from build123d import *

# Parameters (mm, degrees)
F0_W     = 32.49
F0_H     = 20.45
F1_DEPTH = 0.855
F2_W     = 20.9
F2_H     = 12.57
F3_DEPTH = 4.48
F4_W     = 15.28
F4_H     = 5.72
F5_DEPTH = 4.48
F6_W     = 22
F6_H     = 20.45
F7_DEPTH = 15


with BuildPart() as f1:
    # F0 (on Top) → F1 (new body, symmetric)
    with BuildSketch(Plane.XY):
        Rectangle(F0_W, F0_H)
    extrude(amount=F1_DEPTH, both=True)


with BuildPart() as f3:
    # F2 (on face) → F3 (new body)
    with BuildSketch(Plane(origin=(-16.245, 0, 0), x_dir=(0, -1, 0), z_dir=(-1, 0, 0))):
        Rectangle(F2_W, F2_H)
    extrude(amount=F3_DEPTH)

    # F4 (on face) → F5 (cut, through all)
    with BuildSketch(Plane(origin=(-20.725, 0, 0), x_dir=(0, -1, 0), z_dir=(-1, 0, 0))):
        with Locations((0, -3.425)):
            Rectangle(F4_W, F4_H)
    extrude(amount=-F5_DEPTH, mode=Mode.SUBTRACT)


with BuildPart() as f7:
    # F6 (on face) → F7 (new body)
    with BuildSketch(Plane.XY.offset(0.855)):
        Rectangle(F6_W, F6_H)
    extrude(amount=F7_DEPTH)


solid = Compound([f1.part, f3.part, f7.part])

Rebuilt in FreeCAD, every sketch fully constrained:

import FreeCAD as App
import Part
import Sketcher

V = App.Vector

doc = App.newDocument("Part")
body = doc.addObject("PartDesign::Body", "Body")

# Sketch on XY plane
sketch1 = body.newObject("Sketcher::SketchObject", "Sketch")
sketch1.AttachmentSupport = (doc.getObject("XY_Plane"), [""])
sketch1.MapMode = "FlatFace"
sketch1.addGeometry(Part.LineSegment(V(-16, 10, 0), V(-16, -10, 0)), False)
sketch1.addGeometry(Part.LineSegment(V(-16, -10, 0), V(16, -10, 0)), False)
sketch1.addGeometry(Part.LineSegment(V(16, -10, 0), V(16, 10, 0)), False)
sketch1.addGeometry(Part.LineSegment(V(16, 10, 0), V(-16, 10, 0)), False)
sketch1.addConstraint(Sketcher.Constraint("Coincident", 0, 2, 1, 1))
sketch1.addConstraint(Sketcher.Constraint("Coincident", 1, 2, 2, 1))
sketch1.addConstraint(Sketcher.Constraint("Coincident", 2, 2, 3, 1))
sketch1.addConstraint(Sketcher.Constraint("Coincident", 3, 2, 0, 1))
sketch1.addConstraint(Sketcher.Constraint("Vertical", 0))
sketch1.addConstraint(Sketcher.Constraint("Horizontal", 1))
sketch1.addConstraint(Sketcher.Constraint("Vertical", 2))
sketch1.addConstraint(Sketcher.Constraint("Horizontal", 3))
sketch1.addConstraint(Sketcher.Constraint("Symmetric", 0, 2, 2, 2, -1, 1))
sketch1.addConstraint(Sketcher.Constraint("DistanceX", 1, 1, 1, 2, 32.49))
sketch1.addConstraint(Sketcher.Constraint("DistanceY", 0, 2, 0, 1, 20.45))
pad1 = body.newObject("PartDesign::Pad", "Pad")
pad1.Profile = sketch1
pad1.Length = 1.71
pad1.Midplane = True
body2 = doc.addObject("PartDesign::Body", "Body001")

# Sketch on YZ plane
sketch2 = body2.newObject("Sketcher::SketchObject", "Sketch001")
sketch2.AttachmentSupport = (doc.getObject("YZ_Plane001"), [""])
sketch2.MapMode = "FlatFace"
sketch2.AttachmentOffset = App.Placement(V(0, 0, -16.245), App.Rotation())
sketch2.addGeometry(Part.LineSegment(V(10, 6, 0), V(10, -6, 0)), False)
sketch2.addGeometry(Part.LineSegment(V(10, -6, 0), V(-10, -6, 0)), False)
sketch2.addGeometry(Part.LineSegment(V(-10, -6, 0), V(-10, 6, 0)), False)
sketch2.addGeometry(Part.LineSegment(V(-10, 6, 0), V(10, 6, 0)), False)
sketch2.addConstraint(Sketcher.Constraint("Coincident", 0, 2, 1, 1))
sketch2.addConstraint(Sketcher.Constraint("Coincident", 1, 2, 2, 1))
sketch2.addConstraint(Sketcher.Constraint("Coincident", 2, 2, 3, 1))
sketch2.addConstraint(Sketcher.Constraint("Coincident", 3, 2, 0, 1))
sketch2.addConstraint(Sketcher.Constraint("Vertical", 0))
sketch2.addConstraint(Sketcher.Constraint("Horizontal", 1))
sketch2.addConstraint(Sketcher.Constraint("Vertical", 2))
sketch2.addConstraint(Sketcher.Constraint("Horizontal", 3))
sketch2.addConstraint(Sketcher.Constraint("Symmetric", 0, 2, 2, 2, -1, 1))
sketch2.addConstraint(Sketcher.Constraint("DistanceX", 1, 2, 1, 1, 20.9))
sketch2.addConstraint(Sketcher.Constraint("DistanceY", 0, 2, 0, 1, 12.57))
pad2 = body2.newObject("PartDesign::Pad", "Pad001")
pad2.Profile = sketch2
pad2.Length = 4.48
pad2.Reversed = True

# Sketch on YZ plane
sketch3 = body2.newObject("Sketcher::SketchObject", "Sketch002")
sketch3.AttachmentSupport = (doc.getObject("YZ_Plane001"), [""])
sketch3.MapMode = "FlatFace"
sketch3.AttachmentOffset = App.Placement(V(0, 0, -20.725), App.Rotation())
sketch3.addGeometry(Part.LineSegment(V(8, -1, 0), V(8, -6, 0)), False)
sketch3.addGeometry(Part.LineSegment(V(8, -6, 0), V(-8, -6, 0)), False)
sketch3.addGeometry(Part.LineSegment(V(-8, -6, 0), V(-8, -1, 0)), False)
sketch3.addGeometry(Part.LineSegment(V(-8, -1, 0), V(8, -1, 0)), False)
sketch3.addConstraint(Sketcher.Constraint("Coincident", 0, 2, 1, 1))
sketch3.addConstraint(Sketcher.Constraint("Coincident", 1, 2, 2, 1))
sketch3.addConstraint(Sketcher.Constraint("Coincident", 2, 2, 3, 1))
sketch3.addConstraint(Sketcher.Constraint("Coincident", 3, 2, 0, 1))
sketch3.addConstraint(Sketcher.Constraint("Vertical", 0))
sketch3.addConstraint(Sketcher.Constraint("Horizontal", 1))
sketch3.addConstraint(Sketcher.Constraint("Vertical", 2))
sketch3.addConstraint(Sketcher.Constraint("Horizontal", 3))
sketch3.addConstraint(Sketcher.Constraint("DistanceX", 1, 2, 1, 1, 15.28))
sketch3.addConstraint(Sketcher.Constraint("DistanceY", 0, 2, 0, 1, 5.72))
sketch3.addConstraint(Sketcher.Constraint("DistanceX", -1, 1, 0, 2, 7.64))
sketch3.addConstraint(Sketcher.Constraint("DistanceY", 0, 2, -1, 1, 6.285))
pocket1 = body2.newObject("PartDesign::Pocket", "Pocket")
pocket1.Profile = sketch3
pocket1.Type = "ThroughAll"
pocket1.Reversed = True
body3 = doc.addObject("PartDesign::Body", "Body002")

# Sketch on XY plane
sketch4 = body3.newObject("Sketcher::SketchObject", "Sketch003")
sketch4.AttachmentSupport = (doc.getObject("XY_Plane002"), [""])
sketch4.MapMode = "FlatFace"
sketch4.AttachmentOffset = App.Placement(V(0, 0, 0.855), App.Rotation())
sketch4.addGeometry(Part.LineSegment(V(-11, 10, 0), V(-11, -10, 0)), False)
sketch4.addGeometry(Part.LineSegment(V(-11, -10, 0), V(11, -10, 0)), False)
sketch4.addGeometry(Part.LineSegment(V(11, -10, 0), V(11, 10, 0)), False)
sketch4.addGeometry(Part.LineSegment(V(11, 10, 0), V(-11, 10, 0)), False)
sketch4.addConstraint(Sketcher.Constraint("Coincident", 0, 2, 1, 1))
sketch4.addConstraint(Sketcher.Constraint("Coincident", 1, 2, 2, 1))
sketch4.addConstraint(Sketcher.Constraint("Coincident", 2, 2, 3, 1))
sketch4.addConstraint(Sketcher.Constraint("Coincident", 3, 2, 0, 1))
sketch4.addConstraint(Sketcher.Constraint("Vertical", 0))
sketch4.addConstraint(Sketcher.Constraint("Horizontal", 1))
sketch4.addConstraint(Sketcher.Constraint("Vertical", 2))
sketch4.addConstraint(Sketcher.Constraint("Horizontal", 3))
sketch4.addConstraint(Sketcher.Constraint("Symmetric", 0, 2, 2, 2, -1, 1))
sketch4.addConstraint(Sketcher.Constraint("DistanceX", 1, 1, 1, 2, 22.0))
sketch4.addConstraint(Sketcher.Constraint("DistanceY", 0, 2, 0, 1, 20.45))
pad3 = body3.newObject("PartDesign::Pad", "Pad002")
pad3.Profile = sketch4
pad3.Length = 15

doc.recompute()
